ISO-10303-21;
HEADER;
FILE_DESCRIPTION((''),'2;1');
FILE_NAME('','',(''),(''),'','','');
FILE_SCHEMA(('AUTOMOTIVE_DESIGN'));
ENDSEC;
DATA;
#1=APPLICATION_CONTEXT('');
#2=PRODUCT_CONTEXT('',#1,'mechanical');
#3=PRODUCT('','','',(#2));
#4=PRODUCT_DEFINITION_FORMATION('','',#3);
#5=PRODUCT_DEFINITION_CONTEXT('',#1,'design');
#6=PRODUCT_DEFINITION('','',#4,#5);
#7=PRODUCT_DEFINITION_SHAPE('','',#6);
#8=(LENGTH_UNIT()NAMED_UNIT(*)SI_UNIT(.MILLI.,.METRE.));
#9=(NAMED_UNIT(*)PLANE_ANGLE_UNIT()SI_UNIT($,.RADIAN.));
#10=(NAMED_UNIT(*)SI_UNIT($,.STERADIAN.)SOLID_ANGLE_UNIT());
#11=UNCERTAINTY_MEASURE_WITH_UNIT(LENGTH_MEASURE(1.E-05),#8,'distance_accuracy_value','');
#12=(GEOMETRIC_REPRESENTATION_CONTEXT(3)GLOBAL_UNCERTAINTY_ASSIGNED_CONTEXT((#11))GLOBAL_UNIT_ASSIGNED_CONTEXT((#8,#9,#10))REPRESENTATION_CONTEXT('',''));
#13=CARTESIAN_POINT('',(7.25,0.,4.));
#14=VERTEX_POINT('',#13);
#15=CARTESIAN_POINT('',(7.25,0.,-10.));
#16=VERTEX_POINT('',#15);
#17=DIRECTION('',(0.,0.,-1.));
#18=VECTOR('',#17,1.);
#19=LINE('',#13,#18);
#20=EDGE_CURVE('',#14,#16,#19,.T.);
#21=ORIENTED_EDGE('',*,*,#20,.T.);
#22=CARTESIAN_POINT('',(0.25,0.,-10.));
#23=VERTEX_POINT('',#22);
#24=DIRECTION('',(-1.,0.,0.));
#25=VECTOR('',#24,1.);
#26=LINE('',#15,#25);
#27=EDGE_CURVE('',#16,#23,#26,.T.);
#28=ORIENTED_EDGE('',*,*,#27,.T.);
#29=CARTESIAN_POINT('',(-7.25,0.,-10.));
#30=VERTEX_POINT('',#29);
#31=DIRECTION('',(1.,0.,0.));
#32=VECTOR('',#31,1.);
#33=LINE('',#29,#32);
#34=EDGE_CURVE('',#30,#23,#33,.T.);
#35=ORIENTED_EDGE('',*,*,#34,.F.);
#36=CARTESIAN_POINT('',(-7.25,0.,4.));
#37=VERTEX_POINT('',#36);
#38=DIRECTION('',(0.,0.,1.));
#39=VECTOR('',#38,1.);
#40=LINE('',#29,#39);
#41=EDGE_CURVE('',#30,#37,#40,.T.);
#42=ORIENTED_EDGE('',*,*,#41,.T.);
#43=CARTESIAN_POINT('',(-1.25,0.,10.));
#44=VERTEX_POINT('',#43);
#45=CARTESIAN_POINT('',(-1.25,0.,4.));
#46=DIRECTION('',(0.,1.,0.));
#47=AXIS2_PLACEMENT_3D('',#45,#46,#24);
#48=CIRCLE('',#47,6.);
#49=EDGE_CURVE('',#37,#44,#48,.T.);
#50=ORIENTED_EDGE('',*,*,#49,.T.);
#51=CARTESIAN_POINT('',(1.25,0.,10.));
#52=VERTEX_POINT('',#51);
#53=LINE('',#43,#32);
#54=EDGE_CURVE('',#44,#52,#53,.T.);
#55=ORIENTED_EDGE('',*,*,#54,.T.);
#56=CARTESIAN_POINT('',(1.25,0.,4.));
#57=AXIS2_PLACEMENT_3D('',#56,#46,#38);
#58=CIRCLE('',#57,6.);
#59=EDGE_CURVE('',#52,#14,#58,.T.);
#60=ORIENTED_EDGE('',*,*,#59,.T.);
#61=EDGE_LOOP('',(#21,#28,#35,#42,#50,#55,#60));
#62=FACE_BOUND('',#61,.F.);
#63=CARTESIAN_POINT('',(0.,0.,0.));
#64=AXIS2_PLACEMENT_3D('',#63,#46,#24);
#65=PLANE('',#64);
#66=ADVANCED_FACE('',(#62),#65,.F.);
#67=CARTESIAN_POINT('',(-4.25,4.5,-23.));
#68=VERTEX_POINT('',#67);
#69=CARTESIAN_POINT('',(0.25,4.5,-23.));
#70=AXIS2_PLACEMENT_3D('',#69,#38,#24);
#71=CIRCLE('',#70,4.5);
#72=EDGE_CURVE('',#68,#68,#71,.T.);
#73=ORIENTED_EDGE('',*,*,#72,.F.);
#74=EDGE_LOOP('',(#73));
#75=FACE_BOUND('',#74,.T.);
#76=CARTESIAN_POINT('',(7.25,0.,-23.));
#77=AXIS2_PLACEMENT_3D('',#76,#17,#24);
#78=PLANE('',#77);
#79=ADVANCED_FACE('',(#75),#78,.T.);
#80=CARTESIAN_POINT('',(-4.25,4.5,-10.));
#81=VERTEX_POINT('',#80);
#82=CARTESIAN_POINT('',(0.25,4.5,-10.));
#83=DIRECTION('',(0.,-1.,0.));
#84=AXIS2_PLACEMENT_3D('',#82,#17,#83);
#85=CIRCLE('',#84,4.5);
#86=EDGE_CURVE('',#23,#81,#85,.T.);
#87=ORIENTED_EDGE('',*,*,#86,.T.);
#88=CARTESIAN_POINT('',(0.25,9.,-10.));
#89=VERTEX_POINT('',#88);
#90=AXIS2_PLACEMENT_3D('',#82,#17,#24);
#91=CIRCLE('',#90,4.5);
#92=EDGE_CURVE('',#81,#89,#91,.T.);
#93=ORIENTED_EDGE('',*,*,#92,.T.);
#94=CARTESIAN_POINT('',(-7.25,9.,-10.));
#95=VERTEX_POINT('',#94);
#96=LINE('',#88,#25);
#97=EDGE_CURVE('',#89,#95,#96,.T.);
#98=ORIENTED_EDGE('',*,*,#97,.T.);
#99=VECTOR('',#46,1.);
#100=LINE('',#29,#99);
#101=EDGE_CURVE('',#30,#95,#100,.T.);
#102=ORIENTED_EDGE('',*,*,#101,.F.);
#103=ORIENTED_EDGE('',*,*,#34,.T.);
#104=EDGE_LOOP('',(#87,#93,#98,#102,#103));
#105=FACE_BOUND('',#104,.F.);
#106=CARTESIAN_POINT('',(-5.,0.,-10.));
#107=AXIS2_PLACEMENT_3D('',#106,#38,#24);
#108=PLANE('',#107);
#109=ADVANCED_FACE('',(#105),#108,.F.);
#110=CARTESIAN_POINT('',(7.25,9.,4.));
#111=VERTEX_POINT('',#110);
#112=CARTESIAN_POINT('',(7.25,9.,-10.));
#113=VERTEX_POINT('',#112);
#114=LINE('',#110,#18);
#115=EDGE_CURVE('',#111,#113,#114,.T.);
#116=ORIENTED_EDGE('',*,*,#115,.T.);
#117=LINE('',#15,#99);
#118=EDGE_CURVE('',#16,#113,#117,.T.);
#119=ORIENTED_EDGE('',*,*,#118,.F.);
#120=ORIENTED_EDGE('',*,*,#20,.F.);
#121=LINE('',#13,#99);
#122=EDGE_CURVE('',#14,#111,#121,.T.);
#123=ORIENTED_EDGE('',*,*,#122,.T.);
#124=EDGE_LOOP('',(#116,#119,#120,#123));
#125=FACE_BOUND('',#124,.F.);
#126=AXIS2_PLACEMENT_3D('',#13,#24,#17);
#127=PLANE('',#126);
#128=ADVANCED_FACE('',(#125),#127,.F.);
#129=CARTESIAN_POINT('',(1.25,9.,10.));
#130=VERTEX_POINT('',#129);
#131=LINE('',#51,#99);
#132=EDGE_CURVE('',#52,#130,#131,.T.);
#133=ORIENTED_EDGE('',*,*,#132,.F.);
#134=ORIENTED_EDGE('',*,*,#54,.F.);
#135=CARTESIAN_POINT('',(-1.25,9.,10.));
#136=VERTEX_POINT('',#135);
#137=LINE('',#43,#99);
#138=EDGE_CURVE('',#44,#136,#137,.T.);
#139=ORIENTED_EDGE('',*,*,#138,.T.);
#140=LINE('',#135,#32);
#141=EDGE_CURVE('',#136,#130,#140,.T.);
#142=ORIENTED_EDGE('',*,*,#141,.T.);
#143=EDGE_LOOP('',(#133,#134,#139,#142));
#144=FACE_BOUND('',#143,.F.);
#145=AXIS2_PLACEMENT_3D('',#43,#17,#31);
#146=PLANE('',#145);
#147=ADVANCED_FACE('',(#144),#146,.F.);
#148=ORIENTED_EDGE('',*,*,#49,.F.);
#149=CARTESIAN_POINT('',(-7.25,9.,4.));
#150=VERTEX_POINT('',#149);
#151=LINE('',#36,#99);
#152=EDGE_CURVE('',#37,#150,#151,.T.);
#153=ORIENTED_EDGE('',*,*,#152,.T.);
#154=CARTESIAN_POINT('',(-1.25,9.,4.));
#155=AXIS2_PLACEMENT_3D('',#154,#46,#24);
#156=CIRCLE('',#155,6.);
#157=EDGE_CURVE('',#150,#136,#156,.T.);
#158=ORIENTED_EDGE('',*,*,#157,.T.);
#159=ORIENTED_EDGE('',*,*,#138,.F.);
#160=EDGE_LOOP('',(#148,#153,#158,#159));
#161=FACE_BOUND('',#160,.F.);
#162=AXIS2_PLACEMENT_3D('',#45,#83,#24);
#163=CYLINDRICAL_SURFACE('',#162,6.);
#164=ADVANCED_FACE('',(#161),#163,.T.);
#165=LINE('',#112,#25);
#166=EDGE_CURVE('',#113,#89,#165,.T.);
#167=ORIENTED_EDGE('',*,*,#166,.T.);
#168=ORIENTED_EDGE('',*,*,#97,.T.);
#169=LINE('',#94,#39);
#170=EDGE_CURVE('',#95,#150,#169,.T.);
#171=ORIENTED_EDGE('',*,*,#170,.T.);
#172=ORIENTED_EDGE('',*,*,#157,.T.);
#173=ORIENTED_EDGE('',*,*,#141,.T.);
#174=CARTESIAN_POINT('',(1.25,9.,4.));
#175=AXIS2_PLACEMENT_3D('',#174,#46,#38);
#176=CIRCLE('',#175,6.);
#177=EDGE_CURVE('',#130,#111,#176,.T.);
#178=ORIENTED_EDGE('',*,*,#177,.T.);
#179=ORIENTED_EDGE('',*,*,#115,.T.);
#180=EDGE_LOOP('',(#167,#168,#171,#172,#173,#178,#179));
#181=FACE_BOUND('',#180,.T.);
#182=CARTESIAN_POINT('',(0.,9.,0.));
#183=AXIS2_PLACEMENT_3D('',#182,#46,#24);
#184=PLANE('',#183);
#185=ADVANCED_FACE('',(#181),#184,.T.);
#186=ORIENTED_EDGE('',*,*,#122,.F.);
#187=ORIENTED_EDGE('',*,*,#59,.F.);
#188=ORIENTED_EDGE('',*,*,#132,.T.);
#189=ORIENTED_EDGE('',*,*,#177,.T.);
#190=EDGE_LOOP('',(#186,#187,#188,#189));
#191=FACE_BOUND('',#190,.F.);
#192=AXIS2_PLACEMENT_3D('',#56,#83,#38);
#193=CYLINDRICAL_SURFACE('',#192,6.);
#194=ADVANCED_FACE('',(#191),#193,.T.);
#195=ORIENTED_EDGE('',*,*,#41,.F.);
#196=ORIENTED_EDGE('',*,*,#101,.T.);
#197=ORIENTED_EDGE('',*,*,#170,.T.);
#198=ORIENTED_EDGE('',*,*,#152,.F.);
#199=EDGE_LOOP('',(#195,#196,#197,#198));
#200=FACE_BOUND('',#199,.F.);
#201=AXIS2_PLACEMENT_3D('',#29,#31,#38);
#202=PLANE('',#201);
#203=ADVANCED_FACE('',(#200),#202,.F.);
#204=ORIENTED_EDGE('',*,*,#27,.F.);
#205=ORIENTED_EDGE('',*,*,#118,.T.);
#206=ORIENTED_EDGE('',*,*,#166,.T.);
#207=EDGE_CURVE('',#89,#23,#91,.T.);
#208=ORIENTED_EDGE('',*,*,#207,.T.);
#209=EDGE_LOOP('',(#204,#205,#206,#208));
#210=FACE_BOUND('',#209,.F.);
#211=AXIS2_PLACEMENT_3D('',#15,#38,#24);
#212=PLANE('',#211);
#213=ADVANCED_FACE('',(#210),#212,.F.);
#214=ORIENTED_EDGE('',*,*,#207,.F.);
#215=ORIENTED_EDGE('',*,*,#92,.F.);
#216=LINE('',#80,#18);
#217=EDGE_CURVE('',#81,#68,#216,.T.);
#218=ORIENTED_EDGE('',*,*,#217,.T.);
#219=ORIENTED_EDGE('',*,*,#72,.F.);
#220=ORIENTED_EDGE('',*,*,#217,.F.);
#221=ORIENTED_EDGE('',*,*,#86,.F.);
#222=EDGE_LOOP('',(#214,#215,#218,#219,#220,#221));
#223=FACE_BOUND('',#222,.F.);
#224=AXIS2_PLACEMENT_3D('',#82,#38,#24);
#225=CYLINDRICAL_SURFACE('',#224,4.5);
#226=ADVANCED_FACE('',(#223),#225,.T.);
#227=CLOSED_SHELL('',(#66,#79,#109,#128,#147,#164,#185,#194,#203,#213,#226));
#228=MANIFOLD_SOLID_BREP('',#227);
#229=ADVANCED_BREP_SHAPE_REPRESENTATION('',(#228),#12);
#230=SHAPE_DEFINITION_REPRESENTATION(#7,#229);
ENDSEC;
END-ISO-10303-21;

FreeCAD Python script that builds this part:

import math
import FreeCAD as App
import Part
import Sketcher
from FreeCAD import Vector

doc = App.newDocument("Part")
params = doc.addObject("Spreadsheet::Sheet", "Params")
for row, (alias, value) in enumerate([
    ("sketch1_radius", "6 mm"),
    ("sketch1_width", "14.5 mm"),
    ("pad1_length", "9 mm"),
    ("sketch2_diameter", "9 mm"),
    ("pad2_length", "13 mm"),
], start=1):
    params.set(f"A{row}", alias)
    params.set(f"B{row}", "=" + value)
    params.setAlias(f"B{row}", alias)

body = doc.addObject("PartDesign::Body", "Body")

sketch1 = doc.addObject("Sketcher::SketchObject", "Sketch")
body.addObject(sketch1)
sketch1.AttachmentSupport = (doc.XZ_Plane, [""])
sketch1.MapMode = "FlatFace"
sketch1.addGeometry(Part.LineSegment(Vector(7.25, 4, 0), Vector(7.25, -10, 0)), False)
sketch1.addGeometry(Part.LineSegment(Vector(7.25, -10, 0), Vector(-7.25, -10, 0)), False)
sketch1.addGeometry(Part.LineSegment(Vector(-7.25, -10, 0), Vector(-7.25, 4, 0)), False)
sketch1.addGeometry(Part.ArcOfCircle(Part.Circle(Vector(-1.25, 4, 0), Vector(0, 0, 1), 6), math.radians(90), math.radians(180)), False)
sketch1.addGeometry(Part.LineSegment(Vector(-1.25, 10, 0), Vector(1.25, 10, 0)), False)
sketch1.addGeometry(Part.ArcOfCircle(Part.Circle(Vector(1.25, 4, 0), Vector(0, 0, 1), 6), math.radians(0), math.radians(90)), False)
sketch1.addConstraint(Sketcher.Constraint("Coincident", 0, 2, 1, 1))
sketch1.addConstraint(Sketcher.Constraint("Coincident", 1, 2, 2, 1))
sketch1.addConstraint(Sketcher.Constraint("Tangent", 2, 2, 3, 2))
sketch1.addConstraint(Sketcher.Constraint("Tangent", 3, 1, 4, 1))
sketch1.addConstraint(Sketcher.Constraint("Tangent", 4, 2, 5, 2))
sketch1.addConstraint(Sketcher.Constraint("Tangent", 5, 1, 0, 1))
sketch1.addConstraint(Sketcher.Constraint("Vertical", 0))
sketch1.addConstraint(Sketcher.Constraint("Horizontal", 1))
sketch1.addConstraint(Sketcher.Constraint("Vertical", 2))
sketch1.addConstraint(Sketcher.Constraint("Horizontal", 4))
sketch1.addConstraint(Sketcher.Constraint("Equal", 3, 5))
sketch1.addConstraint(Sketcher.Constraint("Radius", 3, 6.0))
sketch1.addConstraint(Sketcher.Constraint("DistanceX", 1, 2, 1, 1, 14.5))
sketch1.addConstraint(Sketcher.Constraint("DistanceY", 1, 2, 3, 1, 20.0))
sketch1.addConstraint(Sketcher.Constraint("DistanceY", -1, 1, 3, 3, 4.0))
sketch1.addConstraint(Sketcher.Constraint("DistanceX", 3, 3, -1, 1, 1.25))
sketch1.setExpression("Constraints[11]", "Params.sketch1_radius")
sketch1.setExpression("Constraints[12]", "Params.sketch1_width")
pad1 = doc.addObject("PartDesign::Pad", "Pad")
body.addObject(pad1)
pad1.Profile = sketch1
pad1.setExpression("Length", "Params.pad1_length")
pad1.Reversed = True

sketch2 = doc.addObject("Sketcher::SketchObject", "Sketch001")
body.addObject(sketch2)
sketch2.AttachmentSupport = (doc.XY_Plane, [""])
sketch2.MapMode = "FlatFace"
sketch2.AttachmentOffset = App.Placement(Vector(0, 0, -10), App.Rotation())
sketch2.addGeometry(Part.Circle(Vector(0.25, 4.5, 0), Vector(0, 0, 1), 4.5), False)
sketch2.addConstraint(Sketcher.Constraint("Diameter", 0, 9.0))
sketch2.addConstraint(Sketcher.Constraint("DistanceY", -1, 1, 0, 3, 4.5))
sketch2.addConstraint(Sketcher.Constraint("DistanceX", -1, 1, 0, 3, 0.25))
sketch2.setExpression("Constraints[0]", "Params.sketch2_diameter")
pad2 = doc.addObject("PartDesign::Pad", "Pad001")
body.addObject(pad2)
pad2.Profile = sketch2
pad2.setExpression("Length", "Params.pad2_length")
pad2.Reversed = True

doc.recompute()
